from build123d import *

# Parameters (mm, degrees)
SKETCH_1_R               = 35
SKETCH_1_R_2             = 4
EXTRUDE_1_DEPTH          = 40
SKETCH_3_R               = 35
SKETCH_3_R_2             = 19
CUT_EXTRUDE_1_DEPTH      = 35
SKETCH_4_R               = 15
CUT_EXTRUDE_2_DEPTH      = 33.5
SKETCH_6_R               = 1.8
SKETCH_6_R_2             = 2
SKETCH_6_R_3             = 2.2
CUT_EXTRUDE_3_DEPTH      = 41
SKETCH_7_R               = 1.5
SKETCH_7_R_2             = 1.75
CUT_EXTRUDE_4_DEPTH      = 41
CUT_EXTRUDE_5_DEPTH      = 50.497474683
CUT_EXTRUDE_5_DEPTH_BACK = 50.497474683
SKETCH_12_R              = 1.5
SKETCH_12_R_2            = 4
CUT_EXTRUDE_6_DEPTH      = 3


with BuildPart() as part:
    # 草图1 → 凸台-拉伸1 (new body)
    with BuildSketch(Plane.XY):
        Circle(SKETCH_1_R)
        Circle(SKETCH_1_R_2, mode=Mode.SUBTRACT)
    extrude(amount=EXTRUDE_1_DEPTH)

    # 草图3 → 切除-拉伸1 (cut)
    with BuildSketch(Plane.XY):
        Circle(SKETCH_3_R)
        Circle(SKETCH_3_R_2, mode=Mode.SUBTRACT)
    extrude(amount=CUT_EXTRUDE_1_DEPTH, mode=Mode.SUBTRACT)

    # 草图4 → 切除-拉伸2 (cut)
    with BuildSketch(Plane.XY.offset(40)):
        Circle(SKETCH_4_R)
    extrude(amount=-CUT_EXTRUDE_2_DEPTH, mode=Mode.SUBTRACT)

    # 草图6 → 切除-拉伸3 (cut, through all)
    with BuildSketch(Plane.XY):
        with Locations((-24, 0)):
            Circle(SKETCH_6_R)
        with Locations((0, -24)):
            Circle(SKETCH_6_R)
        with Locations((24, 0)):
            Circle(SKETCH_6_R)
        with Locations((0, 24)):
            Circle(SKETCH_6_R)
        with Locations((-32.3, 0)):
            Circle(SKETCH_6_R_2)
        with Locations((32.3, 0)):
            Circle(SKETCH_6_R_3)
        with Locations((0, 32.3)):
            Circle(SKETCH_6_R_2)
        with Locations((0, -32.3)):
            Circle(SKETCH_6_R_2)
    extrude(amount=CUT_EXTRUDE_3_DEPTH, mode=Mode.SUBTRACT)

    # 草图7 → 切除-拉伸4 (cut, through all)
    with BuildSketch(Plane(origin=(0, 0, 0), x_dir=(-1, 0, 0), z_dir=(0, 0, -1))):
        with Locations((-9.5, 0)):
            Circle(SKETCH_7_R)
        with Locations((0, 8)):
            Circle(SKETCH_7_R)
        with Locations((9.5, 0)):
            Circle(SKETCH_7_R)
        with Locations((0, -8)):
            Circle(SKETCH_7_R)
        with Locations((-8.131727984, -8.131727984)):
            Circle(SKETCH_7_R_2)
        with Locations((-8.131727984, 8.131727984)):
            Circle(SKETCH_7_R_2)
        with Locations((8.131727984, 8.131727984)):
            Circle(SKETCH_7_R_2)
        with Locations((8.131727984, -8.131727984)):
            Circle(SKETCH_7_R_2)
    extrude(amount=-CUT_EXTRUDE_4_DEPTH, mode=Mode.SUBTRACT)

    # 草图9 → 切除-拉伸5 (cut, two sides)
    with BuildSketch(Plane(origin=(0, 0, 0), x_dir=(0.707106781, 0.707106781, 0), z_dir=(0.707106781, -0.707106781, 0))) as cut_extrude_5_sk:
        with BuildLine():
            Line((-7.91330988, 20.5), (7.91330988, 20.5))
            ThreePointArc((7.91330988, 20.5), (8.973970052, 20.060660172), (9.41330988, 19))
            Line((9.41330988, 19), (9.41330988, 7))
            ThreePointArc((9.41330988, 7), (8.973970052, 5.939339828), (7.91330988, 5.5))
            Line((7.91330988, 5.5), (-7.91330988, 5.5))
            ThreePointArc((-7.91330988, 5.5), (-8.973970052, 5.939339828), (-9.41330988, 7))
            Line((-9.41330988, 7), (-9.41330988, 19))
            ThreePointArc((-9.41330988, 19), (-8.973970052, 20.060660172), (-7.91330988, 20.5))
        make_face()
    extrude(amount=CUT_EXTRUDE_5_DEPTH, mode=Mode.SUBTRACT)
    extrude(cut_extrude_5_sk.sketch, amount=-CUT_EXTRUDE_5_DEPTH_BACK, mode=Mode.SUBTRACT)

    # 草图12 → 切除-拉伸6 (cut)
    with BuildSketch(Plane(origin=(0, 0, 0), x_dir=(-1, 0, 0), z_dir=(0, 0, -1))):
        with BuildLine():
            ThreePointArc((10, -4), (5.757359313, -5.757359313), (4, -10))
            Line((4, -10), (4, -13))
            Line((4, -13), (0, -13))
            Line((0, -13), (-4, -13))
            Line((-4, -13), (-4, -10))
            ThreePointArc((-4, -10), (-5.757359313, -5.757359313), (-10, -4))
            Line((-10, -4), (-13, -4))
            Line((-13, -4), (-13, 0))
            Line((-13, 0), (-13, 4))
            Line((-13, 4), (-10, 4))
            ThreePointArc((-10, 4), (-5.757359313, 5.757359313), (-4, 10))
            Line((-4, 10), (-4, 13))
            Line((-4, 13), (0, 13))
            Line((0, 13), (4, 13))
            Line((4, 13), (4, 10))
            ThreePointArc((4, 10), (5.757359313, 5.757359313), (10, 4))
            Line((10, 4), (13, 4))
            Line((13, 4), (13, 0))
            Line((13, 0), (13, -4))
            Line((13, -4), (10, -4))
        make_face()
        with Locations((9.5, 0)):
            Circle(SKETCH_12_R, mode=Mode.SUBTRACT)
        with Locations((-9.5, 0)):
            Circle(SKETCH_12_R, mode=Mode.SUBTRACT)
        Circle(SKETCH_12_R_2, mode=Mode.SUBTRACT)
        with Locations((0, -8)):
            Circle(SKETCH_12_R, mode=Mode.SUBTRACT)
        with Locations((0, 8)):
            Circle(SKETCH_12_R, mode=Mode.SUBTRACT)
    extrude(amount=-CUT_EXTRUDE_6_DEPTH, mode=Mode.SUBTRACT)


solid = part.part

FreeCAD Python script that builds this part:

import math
import FreeCAD as App
import Part
import Sketcher
Q = App.Units.Quantity

doc = App.newDocument("Part")
body = doc.addObject("PartDesign::Body", "Body")

# Sketch on XY plane
sketch1 = body.newObject("Sketcher::SketchObject", "Sketch")
sketch1.AttachmentSupport = (doc.getObject("XY_Plane"), [""])
sketch1.MapMode = "FlatFace"
sketch1.addGeometry(Part.Circle(App.Vector(0, 0, 0), App.Vector(0, 0, 1), 35), False)
sketch1.addGeometry(Part.Circle(App.Vector(0, 0, 0), App.Vector(0, 0, 1), 4), False)
sketch1.addConstraint(Sketcher.Constraint("Coincident", 0, 3, -1, 1))
sketch1.addConstraint(Sketcher.Constraint("Coincident", 1, 3, -1, 1))
sketch1.addConstraint(Sketcher.Constraint("Diameter", 0, Q("70 mm")))
sketch1.addConstraint(Sketcher.Constraint("Diameter", 1, Q("8 mm")))
pad1 = body.newObject("PartDesign::Pad", "Pad")
pad1.Profile = sketch1
pad1.Length = 40

# Sketch on XY plane
sketch2 = body.newObject("Sketcher::SketchObject", "Sketch001")
sketch2.AttachmentSupport = (doc.getObject("XY_Plane"), [""])
sketch2.MapMode = "FlatFace"
sketch2.addGeometry(Part.Circle(App.Vector(0, 0, 0), App.Vector(0, 0, 1), 35), False)
sketch2.addGeometry(Part.Circle(App.Vector(0, 0, 0), App.Vector(0, 0, 1), 19), False)
sketch2.addConstraint(Sketcher.Constraint("Coincident", 0, 3, -1, 1))
sketch2.addConstraint(Sketcher.Constraint("Coincident", 1, 3, -1, 1))
sketch2.addConstraint(Sketcher.Constraint("Diameter", 0, Q("70 mm")))
sketch2.addConstraint(Sketcher.Constraint("Diameter", 1, Q("38 mm")))
pocket1 = body.newObject("PartDesign::Pocket", "Pocket")
pocket1.Profile = sketch2
pocket1.Length = 35
pocket1.Reversed = True

# Sketch on XY plane
sketch3 = body.newObject("Sketcher::SketchObject", "Sketch002")
sketch3.AttachmentSupport = (doc.getObject("XY_Plane"), [""])
sketch3.MapMode = "FlatFace"
sketch3.AttachmentOffset = App.Placement(App.Vector(0, 0, 40), App.Rotation())
sketch3.addGeometry(Part.Circle(App.Vector(0, 0, 0), App.Vector(0, 0, 1), 15), False)
sketch3.addConstraint(Sketcher.Constraint("Coincident", 0, 3, -1, 1))
sketch3.addConstraint(Sketcher.Constraint("Diameter", 0, Q("30 mm")))
pocket2 = body.newObject("PartDesign::Pocket", "Pocket001")
pocket2.Profile = sketch3
pocket2.Length = 33.5

# Sketch on XY plane
sketch4 = body.newObject("Sketcher::SketchObject", "Sketch003")
sketch4.AttachmentSupport = (doc.getObject("XY_Plane"), [""])
sketch4.MapMode = "FlatFace"
sketch4.addGeometry(Part.Circle(App.Vector(-24, 0, 0), App.Vector(0, 0, 1), 1.8), False)
sketch4.addGeometry(Part.Circle(App.Vector(0, -24, 0), App.Vector(0, 0, 1), 1.8), False)
sketch4.addGeometry(Part.Circle(App.Vector(24, 0, 0), App.Vector(0, 0, 1), 1.8), False)
sketch4.addGeometry(Part.Circle(App.Vector(0, 24, 0), App.Vector(0, 0, 1), 1.8), False)
sketch4.addGeometry(Part.Circle(App.Vector(-32.3, 0, 0), App.Vector(0, 0, 1), 2), False)
sketch4.addGeometry(Part.Circle(App.Vector(32.3, 0, 0), App.Vector(0, 0, 1), 2.2), False)
sketch4.addGeometry(Part.Circle(App.Vector(0, 32.3, 0), App.Vector(0, 0, 1), 2), False)
sketch4.addGeometry(Part.Circle(App.Vector(0, -32.3, 0), App.Vector(0, 0, 1), 2), False)
sketch4.addConstraint(Sketcher.Constraint("Equal", 0, 1))
sketch4.addConstraint(Sketcher.Constraint("Equal", 1, 2))
sketch4.addConstraint(Sketcher.Constraint("Equal", 2, 3))
sketch4.addConstraint(Sketcher.Constraint("Equal", 4, 6))
sketch4.addConstraint(Sketcher.Constraint("Equal", 6, 7))
sketch4.addConstraint(Sketcher.Constraint("Symmetric", 0, 3, 2, 3, -1, 1))
sketch4.addConstraint(Sketcher.Constraint("Symmetric", 1, 3, 3, 3, -1, 1))
sketch4.addConstraint(Sketcher.Constraint("Symmetric", 4, 3, 5, 3, -1, 1))
sketch4.addConstraint(Sketcher.Constraint("Symmetric", 6, 3, 7, 3, -1, 1))
sketch4.addConstraint(Sketcher.Constraint("PointOnObject", 0, 3, -1))
sketch4.addConstraint(Sketcher.Constraint("PointOnObject", 1, 3, -2))
sketch4.addConstraint(Sketcher.Constraint("PointOnObject", 4, 3, -1))
sketch4.addConstraint(Sketcher.Constraint("PointOnObject", 6, 3, -2))
sketch4.addConstraint(Sketcher.Constraint("Diameter", 4, Q("4 mm")))
sketch4.addConstraint(Sketcher.Constraint("Diameter", 0, Q("3.6 mm")))
sketch4.addConstraint(Sketcher.Constraint("Diameter", 5, Q("4.4 mm")))
sketch4.addConstraint(Sketcher.Constraint("DistanceX", 0, 3, -1, 1, Q("24 mm")))
sketch4.addConstraint(Sketcher.Constraint("DistanceY", 1, 3, -1, 1, Q("24 mm")))
sketch4.addConstraint(Sketcher.Constraint("DistanceX", 4, 3, -1, 1, Q("32.3 mm")))
sketch4.addConstraint(Sketcher.Constraint("DistanceY", -1, 1, 6, 3, Q("32.3 mm")))
pocket3 = body.newObject("PartDesign::Pocket", "Pocket002")
pocket3.Profile = sketch4
pocket3.Type = "ThroughAll"
pocket3.Reversed = True

# Sketch on XY plane
sketch5 = body.newObject("Sketcher::SketchObject", "Sketch004")
sketch5.AttachmentSupport = (doc.getObject("XY_Plane"), [""])
sketch5.MapMode = "FlatFace"
sketch5.addGeometry(Part.Circle(App.Vector(9.5, 0, 0), App.Vector(0, 0, 1), 1.5), False)
sketch5.addGeometry(Part.Circle(App.Vector(0, 8, 0), App.Vector(0, 0, 1), 1.5), False)
sketch5.addGeometry(Part.Circle(App.Vector(-9.5, 0, 0), App.Vector(0, 0, 1), 1.5), False)
sketch5.addGeometry(Part.Circle(App.Vector(0, -8, 0), App.Vector(0, 0, 1), 1.5), False)
sketch5.addGeometry(Part.Circle(App.Vector(8.131728, -8.131728, 0), App.Vector(0, 0, 1), 1.75), False)
sketch5.addGeometry(Part.Circle(App.Vector(8.131728, 8.131728, 0), App.Vector(0, 0, 1), 1.75), False)
sketch5.addGeometry(Part.Circle(App.Vector(-8.131728, 8.131728, 0), App.Vector(0, 0, 1), 1.75), False)
sketch5.addGeometry(Part.Circle(App.Vector(-8.131728, -8.131728, 0), App.Vector(0, 0, 1), 1.75), False)
sketch5.addConstraint(Sketcher.Constraint("Equal", 0, 1))
sketch5.addConstraint(Sketcher.Constraint("Equal", 1, 2))
sketch5.addConstraint(Sketcher.Constraint("Equal", 2, 3))
sketch5.addConstraint(Sketcher.Constraint("Equal", 4, 5))
sketch5.addConstraint(Sketcher.Constraint("Equal", 5, 6))
sketch5.addConstraint(Sketcher.Constraint("Equal", 6, 7))
sketch5.addConstraint(Sketcher.Constraint("Symmetric", 0, 3, 2, 3, -1, 1))
sketch5.addConstraint(Sketcher.Constraint("Symmetric", 1, 3, 3, 3, -1, 1))
sketch5.addConstraint(Sketcher.Constraint("Symmetric", 4, 3, 6, 3, -1, 1))
sketch5.addConstraint(Sketcher.Constraint("Symmetric", 5, 3, 7, 3, -1, 1))
sketch5.addConstraint(Sketcher.Constraint("Symmetric", 5, 3, 6, 3, -2))
sketch5.addConstraint(Sketcher.Constraint("PointOnObject", 0, 3, -1))
sketch5.addConstraint(Sketcher.Constraint("PointOnObject", 1, 3, -2))
sketch5.addConstraint(Sketcher.Constraint("Diameter", 0, Q("3 mm")))
sketch5.addConstraint(Sketcher.Constraint("Diameter", 4, Q("3.5 mm")))
sketch5.addConstraint(Sketcher.Constraint("DistanceY", -1, 1, 1, 3, Q("8 mm")))
sketch5.addConstraint(Sketcher.Constraint("DistanceX", 2, 3, 0, 3, Q("19 mm")))
sketch5.addConstraint(Sketcher.Constraint("DistanceX", -1, 1, 4, 3, Q("8.131728 mm")))
sketch5.addConstraint(Sketcher.Constraint("DistanceY", 4, 3, -1, 1, Q("8.131728 mm")))
pocket4 = body.newObject("PartDesign::Pocket", "Pocket003")
pocket4.Profile = sketch5
pocket4.Type = "ThroughAll"
pocket4.Reversed = True

# Sketch on an angled plane
sketch6 = body.newObject("Sketcher::SketchObject", "Sketch005")
sketch6.Placement = App.Placement(App.Vector(0, 0, 0), App.Rotation(App.Vector(0.707106781, 0.707106781, 0), App.Vector(0, 0, 0.999999999), App.Vector(0.707106781, -0.707106781, 0), "ZXY"))
sketch6.addGeometry(Part.LineSegment(App.Vector(7.91331, 20.5, 0), App.Vector(-7.91331, 20.5, 0)), False)
sketch6.addGeometry(Part.ArcOfCircle(Part.Circle(App.Vector(-7.91331, 19, 0), App.Vector(0, 0, 1), 1.5), math.radians(90), math.radians(180)), False)
sketch6.addGeometry(Part.LineSegment(App.Vector(-9.41331, 19, 0), App.Vector(-9.41331, 7, 0)), False)
sketch6.addGeometry(Part.ArcOfCircle(Part.Circle(App.Vector(-7.91331, 7, 0), App.Vector(0, 0, 1), 1.5), math.radians(180), math.radians(270)), False)
sketch6.addGeometry(Part.LineSegment(App.Vector(-7.91331, 5.5, 0), App.Vector(7.91331, 5.5, 0)), False)
sketch6.addGeometry(Part.ArcOfCircle(Part.Circle(App.Vector(7.91331, 7, 0), App.Vector(0, 0, 1), 1.5), math.radians(-90), math.radians(0)), False)
sketch6.addGeometry(Part.LineSegment(App.Vector(9.41331, 7, 0), App.Vector(9.41331, 19, 0)), False)
sketch6.addGeometry(Part.ArcOfCircle(Part.Circle(App.Vector(7.91331, 19, 0), App.Vector(0, 0, 1), 1.5), math.radians(0), math.radians(90)), False)
sketch6.addConstraint(Sketcher.Constraint("Tangent", 0, 2, 1, 1))
sketch6.addConstraint(Sketcher.Constraint("Tangent", 1, 2, 2, 1))
sketch6.addConstraint(Sketcher.Constraint("Tangent", 2, 2, 3, 1))
sketch6.addConstraint(Sketcher.Constraint("Tangent", 3, 2, 4, 1))
sketch6.addConstraint(Sketcher.Constraint("Tangent", 4, 2, 5, 1))
sketch6.addConstraint(Sketcher.Constraint("Tangent", 5, 2, 6, 1))
sketch6.addConstraint(Sketcher.Constraint("Tangent", 6, 2, 7, 1))
sketch6.addConstraint(Sketcher.Constraint("Tangent", 7, 2, 0, 1))
sketch6.addConstraint(Sketcher.Constraint("Horizontal", 0))
sketch6.addConstraint(Sketcher.Constraint("Vertical", 2))
sketch6.addConstraint(Sketcher.Constraint("Horizontal", 4))
sketch6.addConstraint(Sketcher.Constraint("Vertical", 6))
sketch6.addConstraint(Sketcher.Constraint("Equal", 1, 3))
sketch6.addConstraint(Sketcher.Constraint("Equal", 3, 5))
sketch6.addConstraint(Sketcher.Constraint("Equal", 5, 7))
sketch6.addConstraint(Sketcher.Constraint("Radius", 1, Q("1.5 mm")))
sketch6.addConstraint(Sketcher.Constraint("DistanceY", 2, 2, 2, 1, Q("12 mm")))
sketch6.addConstraint(Sketcher.Constraint("DistanceY", -1, 1, 1, 3, Q("19 mm")))
sketch6.addConstraint(Sketcher.Constraint("DistanceX", 0, 2, 0, 1, Q("15.82662 mm")))
sketch6.addConstraint(Sketcher.Constraint("DistanceX", 1, 3, -1, 1, Q("7.91331 mm")))
pocket5 = body.newObject("PartDesign::Pocket", "Pocket004")
pocket5.Profile = sketch6
pocket5.Type = "ThroughAll"
pocket5.Midplane = True

# Sketch on XY plane
sketch7 = body.newObject("Sketcher::SketchObject", "Sketch006")
sketch7.AttachmentSupport = (doc.getObject("XY_Plane"), [""])
sketch7.MapMode = "FlatFace"
sketch7.addGeometry(Part.ArcOfCircle(Part.Circle(App.Vector(-10, -10, 0), App.Vector(0, 0, 1), 6), math.radians(0), math.radians(90)), False)
sketch7.addGeometry(Part.LineSegment(App.Vector(-10, -4, 0), App.Vector(-13, -4, 0)), False)
sketch7.addGeometry(Part.LineSegment(App.Vector(-13, -4, 0), App.Vector(-13, 4, 0)), False)
sketch7.addGeometry(Part.LineSegment(App.Vector(-13, 4, 0), App.Vector(-10, 4, 0)), False)
sketch7.addGeometry(Part.ArcOfCircle(Part.Circle(App.Vector(-10, 10, 0), App.Vector(0, 0, 1), 6), math.radians(-90), math.radians(0)), False)
sketch7.addGeometry(Part.LineSegment(App.Vector(-4, 10, 0), App.Vector(-4, 13, 0)), False)
sketch7.addGeometry(Part.LineSegment(App.Vector(-4, 13, 0), App.Vector(4, 13, 0)), False)
sketch7.addGeometry(Part.LineSegment(App.Vector(4, 13, 0), App.Vector(4, 10, 0)), False)
sketch7.addGeometry(Part.ArcOfCircle(Part.Circle(App.Vector(10, 10, 0), App.Vector(0, 0, 1), 6), math.radians(180), math.radians(270)), False)
sketch7.addGeometry(Part.LineSegment(App.Vector(10, 4, 0), App.Vector(13, 4, 0)), False)
sketch7.addGeometry(Part.LineSegment(App.Vector(13, 4, 0), App.Vector(13, -4, 0)), False)
sketch7.addGeometry(Part.LineSegment(App.Vector(13, -4, 0), App.Vector(10, -4, 0)), False)
sketch7.addGeometry(Part.ArcOfCircle(Part.Circle(App.Vector(10, -10, 0), App.Vector(0, 0, 1), 6), math.radians(90), math.radians(180)), False)
sketch7.addGeometry(Part.LineSegment(App.Vector(4, -10, 0), App.Vector(4, -13, 0)), False)
sketch7.addGeometry(Part.LineSegment(App.Vector(4, -13, 0), App.Vector(-4, -13, 0)), False)
sketch7.addGeometry(Part.LineSegment(App.Vector(-4, -13, 0), App.Vector(-4, -10, 0)), False)
sketch7.addGeometry(Part.Circle(App.Vector(0, -8, 0), App.Vector(0, 0, 1), 1.5), False)
sketch7.addGeometry(Part.Circle(App.Vector(-9.5, 0, 0), App.Vector(0, 0, 1), 1.5), False)
sketch7.addGeometry(Part.Circle(App.Vector(0, 0, 0), App.Vector(0, 0, 1), 4), False)
sketch7.addGeometry(Part.Circle(App.Vector(9.5, 0, 0), App.Vector(0, 0, 1), 1.5), False)
sketch7.addGeometry(Part.Circle(App.Vector(0, 8, 0), App.Vector(0, 0, 1), 1.5), False)
sketch7.addConstraint(Sketcher.Constraint("Tangent", 0, 2, 1, 1))
sketch7.addConstraint(Sketcher.Constraint("Coincident", 1, 2, 2, 1))
sketch7.addConstraint(Sketcher.Constraint("Coincident", 2, 2, 3, 1))
sketch7.addConstraint(Sketcher.Constraint("Tangent", 3, 2, 4, 1))
sketch7.addConstraint(Sketcher.Constraint("Tangent", 4, 2, 5, 1))
sketch7.addConstraint(Sketcher.Constraint("Coincident", 5, 2, 6, 1))
sketch7.addConstraint(Sketcher.Constraint("Coincident", 6, 2, 7, 1))
sketch7.addConstraint(Sketcher.Constraint("Tangent", 7, 2, 8, 1))
sketch7.addConstraint(Sketcher.Constraint("Tangent", 8, 2, 9, 1))
sketch7.addConstraint(Sketcher.Constraint("Coincident", 9, 2, 10, 1))
sketch7.addConstraint(Sketcher.Constraint("Coincident", 10, 2, 11, 1))
sketch7.addConstraint(Sketcher.Constraint("Tangent", 11, 2, 12, 1))
sketch7.addConstraint(Sketcher.Constraint("Tangent", 12, 2, 13, 1))
sketch7.addConstraint(Sketcher.Constraint("Coincident", 13, 2, 14, 1))
sketch7.addConstraint(Sketcher.Constraint("Coincident", 14, 2, 15, 1))
sketch7.addConstraint(Sketcher.Constraint("Tangent", 15, 2, 0, 1))
sketch7.addConstraint(Sketcher.Constraint("Horizontal", 1))
sketch7.addConstraint(Sketcher.Constraint("Vertical", 2))
sketch7.addConstraint(Sketcher.Constraint("Horizontal", 3))
sketch7.addConstraint(Sketcher.Constraint("Vertical", 5))
sketch7.addConstraint(Sketcher.Constraint("Horizontal", 6))
sketch7.addConstraint(Sketcher.Constraint("Vertical", 7))
sketch7.addConstraint(Sketcher.Constraint("Horizontal", 9))
sketch7.addConstraint(Sketcher.Constraint("Vertical", 10))
sketch7.addConstraint(Sketcher.Constraint("Horizontal", 11))
sketch7.addConstraint(Sketcher.Constraint("Vertical", 13))
sketch7.addConstraint(Sketcher.Constraint("Horizontal", 14))
sketch7.addConstraint(Sketcher.Constraint("Vertical", 15))
sketch7.addConstraint(Sketcher.Constraint("Coincident", 18, 3, -1, 1))
sketch7.addConstraint(Sketcher.Constraint("Equal", 0, 4))
sketch7.addConstraint(Sketcher.Constraint("Equal", 4, 8))
sketch7.addConstraint(Sketcher.Constraint("Equal", 8, 12))
sketch7.addConstraint(Sketcher.Constraint("Equal", 16, 17))
sketch7.addConstraint(Sketcher.Constraint("Equal", 17, 19))
sketch7.addConstraint(Sketcher.Constraint("Equal", 19, 20))
sketch7.addConstraint(Sketcher.Constraint("Symmetric", 0, 3, 8, 3, -1, 1))
sketch7.addConstraint(Sketcher.Constraint("Symmetric", 4, 3, 12, 3, -1, 1))
sketch7.addConstraint(Sketcher.Constraint("Symmetric", 17, 3, 19, 3, -1, 1))
sketch7.addConstraint(Sketcher.Constraint("Symmetric", 16, 3, 20, 3, -1, 1))
sketch7.addConstraint(Sketcher.Constraint("Symmetric", 4, 3, 8, 3, -2))
sketch7.addConstraint(Sketcher.Constraint("PointOnObject", 16, 3, -2))
sketch7.addConstraint(Sketcher.Constraint("PointOnObject", 17, 3, -1))
sketch7.addConstraint(Sketcher.Constraint("Equal", 3, 9))
sketch7.addConstraint(Sketcher.Constraint("Equal", 14, 2))
sketch7.addConstraint(Sketcher.Constraint("Equal", 11, 5))
sketch7.addConstraint(Sketcher.Constraint("Equal", 7, 13))
sketch7.addConstraint(Sketcher.Constraint("Diameter", 16, Q("3 mm")))
sketch7.addConstraint(Sketcher.Constraint("Diameter", 18, Q("8 mm")))
sketch7.addConstraint(Sketcher.Constraint("Radius", 0, Q("6 mm")))
sketch7.addConstraint(Sketcher.Constraint("DistanceX", 1, 2, 1, 1, Q("3 mm")))
sketch7.addConstraint(Sketcher.Constraint("DistanceX", 6, 1, 6, 2, Q("8 mm")))
sketch7.addConstraint(Sketcher.Constraint("DistanceY", 16, 3, -1, 1, Q("8 mm")))
sketch7.addConstraint(Sketcher.Constraint("DistanceX", 17, 3, 19, 3, Q("19 mm")))
pocket6 = body.newObject("PartDesign::Pocket", "Pocket005")
pocket6.Profile = sketch7
pocket6.Length = 3
pocket6.Reversed = True

doc.recompute()
